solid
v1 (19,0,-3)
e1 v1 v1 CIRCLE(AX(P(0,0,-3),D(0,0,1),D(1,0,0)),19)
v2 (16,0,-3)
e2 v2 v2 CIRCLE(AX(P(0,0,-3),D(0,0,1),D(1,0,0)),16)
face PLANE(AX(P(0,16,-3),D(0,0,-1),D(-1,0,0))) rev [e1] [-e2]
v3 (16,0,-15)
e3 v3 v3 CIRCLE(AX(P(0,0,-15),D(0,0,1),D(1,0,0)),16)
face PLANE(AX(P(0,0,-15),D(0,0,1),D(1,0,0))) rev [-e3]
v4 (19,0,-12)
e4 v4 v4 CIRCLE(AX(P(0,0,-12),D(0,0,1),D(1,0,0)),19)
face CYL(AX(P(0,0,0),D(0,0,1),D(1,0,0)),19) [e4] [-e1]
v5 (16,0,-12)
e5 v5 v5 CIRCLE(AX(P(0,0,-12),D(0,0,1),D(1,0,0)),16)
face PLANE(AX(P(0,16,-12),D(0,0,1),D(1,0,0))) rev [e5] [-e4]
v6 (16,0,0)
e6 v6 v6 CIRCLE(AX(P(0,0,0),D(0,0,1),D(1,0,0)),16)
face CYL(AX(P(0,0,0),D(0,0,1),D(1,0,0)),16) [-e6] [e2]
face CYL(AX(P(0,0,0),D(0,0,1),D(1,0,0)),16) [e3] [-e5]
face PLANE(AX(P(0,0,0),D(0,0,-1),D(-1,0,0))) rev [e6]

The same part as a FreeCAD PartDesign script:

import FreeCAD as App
import Part
import Sketcher
from FreeCAD import Vector


def add_polygon(sketch, points):
    """Adds a closed chain of lines whose ends are joined by coincident constraints."""
    first, n = sketch.GeometryCount, len(points)
    for a, b in zip(points, points[1:] + points[:1]):
        sketch.addGeometry(Part.LineSegment(App.Vector(*a, 0), App.Vector(*b, 0)), False)
    for i in range(n):
        sketch.addConstraint(Sketcher.Constraint("Coincident", first + i, 2, first + (i + 1) % n, 1))

doc = App.newDocument("Part")
body = doc.addObject("PartDesign::Body", "Body")

# Sketch on YZ plane
sketch1 = body.newObject("Sketcher::SketchObject", "Sketch")
sketch1.AttachmentSupport = (doc.getObject("YZ_Plane"), [""])
sketch1.MapMode = "FlatFace"
add_polygon(sketch1, [(0, 0), (0, -15), (16, -15), (16, -12), (19, -12), (19, -3), (16, -3), (16, 0)])  # lines 0-7
sketch1.addConstraint([
    Sketcher.Constraint("Vertical", 0),
    Sketcher.Constraint("Horizontal", 1),
    Sketcher.Constraint("Vertical", 2),
    Sketcher.Constraint("Horizontal", 3),
    Sketcher.Constraint("Vertical", 4),
    Sketcher.Constraint("Horizontal", 5),
    Sketcher.Constraint("Vertical", 6),
    Sketcher.Constraint("Horizontal", 7),
    Sketcher.Constraint("Coincident", 7, 2, -1, 1),
    Sketcher.Constraint("Vertical", 2, 2, 5, 2),
    Sketcher.Constraint("Equal", 5, 2),
    Sketcher.Constraint("Equal", 2, 6),
    Sketcher.Constraint("DistanceX", 1, 1, 1, 2, 16.0),
    Sketcher.Constraint("DistanceX", 3, 1, 3, 2, 3.0),
    Sketcher.Constraint("DistanceY", 0, 2, 0, 1, 15.0),
])
revolution = body.newObject("PartDesign::Revolution", "Revolution")
revolution.Profile = sketch1
revolution.ReferenceAxis = (sketch1, ["V_Axis"])
revolution.Angle = 360

doc.recompute()
